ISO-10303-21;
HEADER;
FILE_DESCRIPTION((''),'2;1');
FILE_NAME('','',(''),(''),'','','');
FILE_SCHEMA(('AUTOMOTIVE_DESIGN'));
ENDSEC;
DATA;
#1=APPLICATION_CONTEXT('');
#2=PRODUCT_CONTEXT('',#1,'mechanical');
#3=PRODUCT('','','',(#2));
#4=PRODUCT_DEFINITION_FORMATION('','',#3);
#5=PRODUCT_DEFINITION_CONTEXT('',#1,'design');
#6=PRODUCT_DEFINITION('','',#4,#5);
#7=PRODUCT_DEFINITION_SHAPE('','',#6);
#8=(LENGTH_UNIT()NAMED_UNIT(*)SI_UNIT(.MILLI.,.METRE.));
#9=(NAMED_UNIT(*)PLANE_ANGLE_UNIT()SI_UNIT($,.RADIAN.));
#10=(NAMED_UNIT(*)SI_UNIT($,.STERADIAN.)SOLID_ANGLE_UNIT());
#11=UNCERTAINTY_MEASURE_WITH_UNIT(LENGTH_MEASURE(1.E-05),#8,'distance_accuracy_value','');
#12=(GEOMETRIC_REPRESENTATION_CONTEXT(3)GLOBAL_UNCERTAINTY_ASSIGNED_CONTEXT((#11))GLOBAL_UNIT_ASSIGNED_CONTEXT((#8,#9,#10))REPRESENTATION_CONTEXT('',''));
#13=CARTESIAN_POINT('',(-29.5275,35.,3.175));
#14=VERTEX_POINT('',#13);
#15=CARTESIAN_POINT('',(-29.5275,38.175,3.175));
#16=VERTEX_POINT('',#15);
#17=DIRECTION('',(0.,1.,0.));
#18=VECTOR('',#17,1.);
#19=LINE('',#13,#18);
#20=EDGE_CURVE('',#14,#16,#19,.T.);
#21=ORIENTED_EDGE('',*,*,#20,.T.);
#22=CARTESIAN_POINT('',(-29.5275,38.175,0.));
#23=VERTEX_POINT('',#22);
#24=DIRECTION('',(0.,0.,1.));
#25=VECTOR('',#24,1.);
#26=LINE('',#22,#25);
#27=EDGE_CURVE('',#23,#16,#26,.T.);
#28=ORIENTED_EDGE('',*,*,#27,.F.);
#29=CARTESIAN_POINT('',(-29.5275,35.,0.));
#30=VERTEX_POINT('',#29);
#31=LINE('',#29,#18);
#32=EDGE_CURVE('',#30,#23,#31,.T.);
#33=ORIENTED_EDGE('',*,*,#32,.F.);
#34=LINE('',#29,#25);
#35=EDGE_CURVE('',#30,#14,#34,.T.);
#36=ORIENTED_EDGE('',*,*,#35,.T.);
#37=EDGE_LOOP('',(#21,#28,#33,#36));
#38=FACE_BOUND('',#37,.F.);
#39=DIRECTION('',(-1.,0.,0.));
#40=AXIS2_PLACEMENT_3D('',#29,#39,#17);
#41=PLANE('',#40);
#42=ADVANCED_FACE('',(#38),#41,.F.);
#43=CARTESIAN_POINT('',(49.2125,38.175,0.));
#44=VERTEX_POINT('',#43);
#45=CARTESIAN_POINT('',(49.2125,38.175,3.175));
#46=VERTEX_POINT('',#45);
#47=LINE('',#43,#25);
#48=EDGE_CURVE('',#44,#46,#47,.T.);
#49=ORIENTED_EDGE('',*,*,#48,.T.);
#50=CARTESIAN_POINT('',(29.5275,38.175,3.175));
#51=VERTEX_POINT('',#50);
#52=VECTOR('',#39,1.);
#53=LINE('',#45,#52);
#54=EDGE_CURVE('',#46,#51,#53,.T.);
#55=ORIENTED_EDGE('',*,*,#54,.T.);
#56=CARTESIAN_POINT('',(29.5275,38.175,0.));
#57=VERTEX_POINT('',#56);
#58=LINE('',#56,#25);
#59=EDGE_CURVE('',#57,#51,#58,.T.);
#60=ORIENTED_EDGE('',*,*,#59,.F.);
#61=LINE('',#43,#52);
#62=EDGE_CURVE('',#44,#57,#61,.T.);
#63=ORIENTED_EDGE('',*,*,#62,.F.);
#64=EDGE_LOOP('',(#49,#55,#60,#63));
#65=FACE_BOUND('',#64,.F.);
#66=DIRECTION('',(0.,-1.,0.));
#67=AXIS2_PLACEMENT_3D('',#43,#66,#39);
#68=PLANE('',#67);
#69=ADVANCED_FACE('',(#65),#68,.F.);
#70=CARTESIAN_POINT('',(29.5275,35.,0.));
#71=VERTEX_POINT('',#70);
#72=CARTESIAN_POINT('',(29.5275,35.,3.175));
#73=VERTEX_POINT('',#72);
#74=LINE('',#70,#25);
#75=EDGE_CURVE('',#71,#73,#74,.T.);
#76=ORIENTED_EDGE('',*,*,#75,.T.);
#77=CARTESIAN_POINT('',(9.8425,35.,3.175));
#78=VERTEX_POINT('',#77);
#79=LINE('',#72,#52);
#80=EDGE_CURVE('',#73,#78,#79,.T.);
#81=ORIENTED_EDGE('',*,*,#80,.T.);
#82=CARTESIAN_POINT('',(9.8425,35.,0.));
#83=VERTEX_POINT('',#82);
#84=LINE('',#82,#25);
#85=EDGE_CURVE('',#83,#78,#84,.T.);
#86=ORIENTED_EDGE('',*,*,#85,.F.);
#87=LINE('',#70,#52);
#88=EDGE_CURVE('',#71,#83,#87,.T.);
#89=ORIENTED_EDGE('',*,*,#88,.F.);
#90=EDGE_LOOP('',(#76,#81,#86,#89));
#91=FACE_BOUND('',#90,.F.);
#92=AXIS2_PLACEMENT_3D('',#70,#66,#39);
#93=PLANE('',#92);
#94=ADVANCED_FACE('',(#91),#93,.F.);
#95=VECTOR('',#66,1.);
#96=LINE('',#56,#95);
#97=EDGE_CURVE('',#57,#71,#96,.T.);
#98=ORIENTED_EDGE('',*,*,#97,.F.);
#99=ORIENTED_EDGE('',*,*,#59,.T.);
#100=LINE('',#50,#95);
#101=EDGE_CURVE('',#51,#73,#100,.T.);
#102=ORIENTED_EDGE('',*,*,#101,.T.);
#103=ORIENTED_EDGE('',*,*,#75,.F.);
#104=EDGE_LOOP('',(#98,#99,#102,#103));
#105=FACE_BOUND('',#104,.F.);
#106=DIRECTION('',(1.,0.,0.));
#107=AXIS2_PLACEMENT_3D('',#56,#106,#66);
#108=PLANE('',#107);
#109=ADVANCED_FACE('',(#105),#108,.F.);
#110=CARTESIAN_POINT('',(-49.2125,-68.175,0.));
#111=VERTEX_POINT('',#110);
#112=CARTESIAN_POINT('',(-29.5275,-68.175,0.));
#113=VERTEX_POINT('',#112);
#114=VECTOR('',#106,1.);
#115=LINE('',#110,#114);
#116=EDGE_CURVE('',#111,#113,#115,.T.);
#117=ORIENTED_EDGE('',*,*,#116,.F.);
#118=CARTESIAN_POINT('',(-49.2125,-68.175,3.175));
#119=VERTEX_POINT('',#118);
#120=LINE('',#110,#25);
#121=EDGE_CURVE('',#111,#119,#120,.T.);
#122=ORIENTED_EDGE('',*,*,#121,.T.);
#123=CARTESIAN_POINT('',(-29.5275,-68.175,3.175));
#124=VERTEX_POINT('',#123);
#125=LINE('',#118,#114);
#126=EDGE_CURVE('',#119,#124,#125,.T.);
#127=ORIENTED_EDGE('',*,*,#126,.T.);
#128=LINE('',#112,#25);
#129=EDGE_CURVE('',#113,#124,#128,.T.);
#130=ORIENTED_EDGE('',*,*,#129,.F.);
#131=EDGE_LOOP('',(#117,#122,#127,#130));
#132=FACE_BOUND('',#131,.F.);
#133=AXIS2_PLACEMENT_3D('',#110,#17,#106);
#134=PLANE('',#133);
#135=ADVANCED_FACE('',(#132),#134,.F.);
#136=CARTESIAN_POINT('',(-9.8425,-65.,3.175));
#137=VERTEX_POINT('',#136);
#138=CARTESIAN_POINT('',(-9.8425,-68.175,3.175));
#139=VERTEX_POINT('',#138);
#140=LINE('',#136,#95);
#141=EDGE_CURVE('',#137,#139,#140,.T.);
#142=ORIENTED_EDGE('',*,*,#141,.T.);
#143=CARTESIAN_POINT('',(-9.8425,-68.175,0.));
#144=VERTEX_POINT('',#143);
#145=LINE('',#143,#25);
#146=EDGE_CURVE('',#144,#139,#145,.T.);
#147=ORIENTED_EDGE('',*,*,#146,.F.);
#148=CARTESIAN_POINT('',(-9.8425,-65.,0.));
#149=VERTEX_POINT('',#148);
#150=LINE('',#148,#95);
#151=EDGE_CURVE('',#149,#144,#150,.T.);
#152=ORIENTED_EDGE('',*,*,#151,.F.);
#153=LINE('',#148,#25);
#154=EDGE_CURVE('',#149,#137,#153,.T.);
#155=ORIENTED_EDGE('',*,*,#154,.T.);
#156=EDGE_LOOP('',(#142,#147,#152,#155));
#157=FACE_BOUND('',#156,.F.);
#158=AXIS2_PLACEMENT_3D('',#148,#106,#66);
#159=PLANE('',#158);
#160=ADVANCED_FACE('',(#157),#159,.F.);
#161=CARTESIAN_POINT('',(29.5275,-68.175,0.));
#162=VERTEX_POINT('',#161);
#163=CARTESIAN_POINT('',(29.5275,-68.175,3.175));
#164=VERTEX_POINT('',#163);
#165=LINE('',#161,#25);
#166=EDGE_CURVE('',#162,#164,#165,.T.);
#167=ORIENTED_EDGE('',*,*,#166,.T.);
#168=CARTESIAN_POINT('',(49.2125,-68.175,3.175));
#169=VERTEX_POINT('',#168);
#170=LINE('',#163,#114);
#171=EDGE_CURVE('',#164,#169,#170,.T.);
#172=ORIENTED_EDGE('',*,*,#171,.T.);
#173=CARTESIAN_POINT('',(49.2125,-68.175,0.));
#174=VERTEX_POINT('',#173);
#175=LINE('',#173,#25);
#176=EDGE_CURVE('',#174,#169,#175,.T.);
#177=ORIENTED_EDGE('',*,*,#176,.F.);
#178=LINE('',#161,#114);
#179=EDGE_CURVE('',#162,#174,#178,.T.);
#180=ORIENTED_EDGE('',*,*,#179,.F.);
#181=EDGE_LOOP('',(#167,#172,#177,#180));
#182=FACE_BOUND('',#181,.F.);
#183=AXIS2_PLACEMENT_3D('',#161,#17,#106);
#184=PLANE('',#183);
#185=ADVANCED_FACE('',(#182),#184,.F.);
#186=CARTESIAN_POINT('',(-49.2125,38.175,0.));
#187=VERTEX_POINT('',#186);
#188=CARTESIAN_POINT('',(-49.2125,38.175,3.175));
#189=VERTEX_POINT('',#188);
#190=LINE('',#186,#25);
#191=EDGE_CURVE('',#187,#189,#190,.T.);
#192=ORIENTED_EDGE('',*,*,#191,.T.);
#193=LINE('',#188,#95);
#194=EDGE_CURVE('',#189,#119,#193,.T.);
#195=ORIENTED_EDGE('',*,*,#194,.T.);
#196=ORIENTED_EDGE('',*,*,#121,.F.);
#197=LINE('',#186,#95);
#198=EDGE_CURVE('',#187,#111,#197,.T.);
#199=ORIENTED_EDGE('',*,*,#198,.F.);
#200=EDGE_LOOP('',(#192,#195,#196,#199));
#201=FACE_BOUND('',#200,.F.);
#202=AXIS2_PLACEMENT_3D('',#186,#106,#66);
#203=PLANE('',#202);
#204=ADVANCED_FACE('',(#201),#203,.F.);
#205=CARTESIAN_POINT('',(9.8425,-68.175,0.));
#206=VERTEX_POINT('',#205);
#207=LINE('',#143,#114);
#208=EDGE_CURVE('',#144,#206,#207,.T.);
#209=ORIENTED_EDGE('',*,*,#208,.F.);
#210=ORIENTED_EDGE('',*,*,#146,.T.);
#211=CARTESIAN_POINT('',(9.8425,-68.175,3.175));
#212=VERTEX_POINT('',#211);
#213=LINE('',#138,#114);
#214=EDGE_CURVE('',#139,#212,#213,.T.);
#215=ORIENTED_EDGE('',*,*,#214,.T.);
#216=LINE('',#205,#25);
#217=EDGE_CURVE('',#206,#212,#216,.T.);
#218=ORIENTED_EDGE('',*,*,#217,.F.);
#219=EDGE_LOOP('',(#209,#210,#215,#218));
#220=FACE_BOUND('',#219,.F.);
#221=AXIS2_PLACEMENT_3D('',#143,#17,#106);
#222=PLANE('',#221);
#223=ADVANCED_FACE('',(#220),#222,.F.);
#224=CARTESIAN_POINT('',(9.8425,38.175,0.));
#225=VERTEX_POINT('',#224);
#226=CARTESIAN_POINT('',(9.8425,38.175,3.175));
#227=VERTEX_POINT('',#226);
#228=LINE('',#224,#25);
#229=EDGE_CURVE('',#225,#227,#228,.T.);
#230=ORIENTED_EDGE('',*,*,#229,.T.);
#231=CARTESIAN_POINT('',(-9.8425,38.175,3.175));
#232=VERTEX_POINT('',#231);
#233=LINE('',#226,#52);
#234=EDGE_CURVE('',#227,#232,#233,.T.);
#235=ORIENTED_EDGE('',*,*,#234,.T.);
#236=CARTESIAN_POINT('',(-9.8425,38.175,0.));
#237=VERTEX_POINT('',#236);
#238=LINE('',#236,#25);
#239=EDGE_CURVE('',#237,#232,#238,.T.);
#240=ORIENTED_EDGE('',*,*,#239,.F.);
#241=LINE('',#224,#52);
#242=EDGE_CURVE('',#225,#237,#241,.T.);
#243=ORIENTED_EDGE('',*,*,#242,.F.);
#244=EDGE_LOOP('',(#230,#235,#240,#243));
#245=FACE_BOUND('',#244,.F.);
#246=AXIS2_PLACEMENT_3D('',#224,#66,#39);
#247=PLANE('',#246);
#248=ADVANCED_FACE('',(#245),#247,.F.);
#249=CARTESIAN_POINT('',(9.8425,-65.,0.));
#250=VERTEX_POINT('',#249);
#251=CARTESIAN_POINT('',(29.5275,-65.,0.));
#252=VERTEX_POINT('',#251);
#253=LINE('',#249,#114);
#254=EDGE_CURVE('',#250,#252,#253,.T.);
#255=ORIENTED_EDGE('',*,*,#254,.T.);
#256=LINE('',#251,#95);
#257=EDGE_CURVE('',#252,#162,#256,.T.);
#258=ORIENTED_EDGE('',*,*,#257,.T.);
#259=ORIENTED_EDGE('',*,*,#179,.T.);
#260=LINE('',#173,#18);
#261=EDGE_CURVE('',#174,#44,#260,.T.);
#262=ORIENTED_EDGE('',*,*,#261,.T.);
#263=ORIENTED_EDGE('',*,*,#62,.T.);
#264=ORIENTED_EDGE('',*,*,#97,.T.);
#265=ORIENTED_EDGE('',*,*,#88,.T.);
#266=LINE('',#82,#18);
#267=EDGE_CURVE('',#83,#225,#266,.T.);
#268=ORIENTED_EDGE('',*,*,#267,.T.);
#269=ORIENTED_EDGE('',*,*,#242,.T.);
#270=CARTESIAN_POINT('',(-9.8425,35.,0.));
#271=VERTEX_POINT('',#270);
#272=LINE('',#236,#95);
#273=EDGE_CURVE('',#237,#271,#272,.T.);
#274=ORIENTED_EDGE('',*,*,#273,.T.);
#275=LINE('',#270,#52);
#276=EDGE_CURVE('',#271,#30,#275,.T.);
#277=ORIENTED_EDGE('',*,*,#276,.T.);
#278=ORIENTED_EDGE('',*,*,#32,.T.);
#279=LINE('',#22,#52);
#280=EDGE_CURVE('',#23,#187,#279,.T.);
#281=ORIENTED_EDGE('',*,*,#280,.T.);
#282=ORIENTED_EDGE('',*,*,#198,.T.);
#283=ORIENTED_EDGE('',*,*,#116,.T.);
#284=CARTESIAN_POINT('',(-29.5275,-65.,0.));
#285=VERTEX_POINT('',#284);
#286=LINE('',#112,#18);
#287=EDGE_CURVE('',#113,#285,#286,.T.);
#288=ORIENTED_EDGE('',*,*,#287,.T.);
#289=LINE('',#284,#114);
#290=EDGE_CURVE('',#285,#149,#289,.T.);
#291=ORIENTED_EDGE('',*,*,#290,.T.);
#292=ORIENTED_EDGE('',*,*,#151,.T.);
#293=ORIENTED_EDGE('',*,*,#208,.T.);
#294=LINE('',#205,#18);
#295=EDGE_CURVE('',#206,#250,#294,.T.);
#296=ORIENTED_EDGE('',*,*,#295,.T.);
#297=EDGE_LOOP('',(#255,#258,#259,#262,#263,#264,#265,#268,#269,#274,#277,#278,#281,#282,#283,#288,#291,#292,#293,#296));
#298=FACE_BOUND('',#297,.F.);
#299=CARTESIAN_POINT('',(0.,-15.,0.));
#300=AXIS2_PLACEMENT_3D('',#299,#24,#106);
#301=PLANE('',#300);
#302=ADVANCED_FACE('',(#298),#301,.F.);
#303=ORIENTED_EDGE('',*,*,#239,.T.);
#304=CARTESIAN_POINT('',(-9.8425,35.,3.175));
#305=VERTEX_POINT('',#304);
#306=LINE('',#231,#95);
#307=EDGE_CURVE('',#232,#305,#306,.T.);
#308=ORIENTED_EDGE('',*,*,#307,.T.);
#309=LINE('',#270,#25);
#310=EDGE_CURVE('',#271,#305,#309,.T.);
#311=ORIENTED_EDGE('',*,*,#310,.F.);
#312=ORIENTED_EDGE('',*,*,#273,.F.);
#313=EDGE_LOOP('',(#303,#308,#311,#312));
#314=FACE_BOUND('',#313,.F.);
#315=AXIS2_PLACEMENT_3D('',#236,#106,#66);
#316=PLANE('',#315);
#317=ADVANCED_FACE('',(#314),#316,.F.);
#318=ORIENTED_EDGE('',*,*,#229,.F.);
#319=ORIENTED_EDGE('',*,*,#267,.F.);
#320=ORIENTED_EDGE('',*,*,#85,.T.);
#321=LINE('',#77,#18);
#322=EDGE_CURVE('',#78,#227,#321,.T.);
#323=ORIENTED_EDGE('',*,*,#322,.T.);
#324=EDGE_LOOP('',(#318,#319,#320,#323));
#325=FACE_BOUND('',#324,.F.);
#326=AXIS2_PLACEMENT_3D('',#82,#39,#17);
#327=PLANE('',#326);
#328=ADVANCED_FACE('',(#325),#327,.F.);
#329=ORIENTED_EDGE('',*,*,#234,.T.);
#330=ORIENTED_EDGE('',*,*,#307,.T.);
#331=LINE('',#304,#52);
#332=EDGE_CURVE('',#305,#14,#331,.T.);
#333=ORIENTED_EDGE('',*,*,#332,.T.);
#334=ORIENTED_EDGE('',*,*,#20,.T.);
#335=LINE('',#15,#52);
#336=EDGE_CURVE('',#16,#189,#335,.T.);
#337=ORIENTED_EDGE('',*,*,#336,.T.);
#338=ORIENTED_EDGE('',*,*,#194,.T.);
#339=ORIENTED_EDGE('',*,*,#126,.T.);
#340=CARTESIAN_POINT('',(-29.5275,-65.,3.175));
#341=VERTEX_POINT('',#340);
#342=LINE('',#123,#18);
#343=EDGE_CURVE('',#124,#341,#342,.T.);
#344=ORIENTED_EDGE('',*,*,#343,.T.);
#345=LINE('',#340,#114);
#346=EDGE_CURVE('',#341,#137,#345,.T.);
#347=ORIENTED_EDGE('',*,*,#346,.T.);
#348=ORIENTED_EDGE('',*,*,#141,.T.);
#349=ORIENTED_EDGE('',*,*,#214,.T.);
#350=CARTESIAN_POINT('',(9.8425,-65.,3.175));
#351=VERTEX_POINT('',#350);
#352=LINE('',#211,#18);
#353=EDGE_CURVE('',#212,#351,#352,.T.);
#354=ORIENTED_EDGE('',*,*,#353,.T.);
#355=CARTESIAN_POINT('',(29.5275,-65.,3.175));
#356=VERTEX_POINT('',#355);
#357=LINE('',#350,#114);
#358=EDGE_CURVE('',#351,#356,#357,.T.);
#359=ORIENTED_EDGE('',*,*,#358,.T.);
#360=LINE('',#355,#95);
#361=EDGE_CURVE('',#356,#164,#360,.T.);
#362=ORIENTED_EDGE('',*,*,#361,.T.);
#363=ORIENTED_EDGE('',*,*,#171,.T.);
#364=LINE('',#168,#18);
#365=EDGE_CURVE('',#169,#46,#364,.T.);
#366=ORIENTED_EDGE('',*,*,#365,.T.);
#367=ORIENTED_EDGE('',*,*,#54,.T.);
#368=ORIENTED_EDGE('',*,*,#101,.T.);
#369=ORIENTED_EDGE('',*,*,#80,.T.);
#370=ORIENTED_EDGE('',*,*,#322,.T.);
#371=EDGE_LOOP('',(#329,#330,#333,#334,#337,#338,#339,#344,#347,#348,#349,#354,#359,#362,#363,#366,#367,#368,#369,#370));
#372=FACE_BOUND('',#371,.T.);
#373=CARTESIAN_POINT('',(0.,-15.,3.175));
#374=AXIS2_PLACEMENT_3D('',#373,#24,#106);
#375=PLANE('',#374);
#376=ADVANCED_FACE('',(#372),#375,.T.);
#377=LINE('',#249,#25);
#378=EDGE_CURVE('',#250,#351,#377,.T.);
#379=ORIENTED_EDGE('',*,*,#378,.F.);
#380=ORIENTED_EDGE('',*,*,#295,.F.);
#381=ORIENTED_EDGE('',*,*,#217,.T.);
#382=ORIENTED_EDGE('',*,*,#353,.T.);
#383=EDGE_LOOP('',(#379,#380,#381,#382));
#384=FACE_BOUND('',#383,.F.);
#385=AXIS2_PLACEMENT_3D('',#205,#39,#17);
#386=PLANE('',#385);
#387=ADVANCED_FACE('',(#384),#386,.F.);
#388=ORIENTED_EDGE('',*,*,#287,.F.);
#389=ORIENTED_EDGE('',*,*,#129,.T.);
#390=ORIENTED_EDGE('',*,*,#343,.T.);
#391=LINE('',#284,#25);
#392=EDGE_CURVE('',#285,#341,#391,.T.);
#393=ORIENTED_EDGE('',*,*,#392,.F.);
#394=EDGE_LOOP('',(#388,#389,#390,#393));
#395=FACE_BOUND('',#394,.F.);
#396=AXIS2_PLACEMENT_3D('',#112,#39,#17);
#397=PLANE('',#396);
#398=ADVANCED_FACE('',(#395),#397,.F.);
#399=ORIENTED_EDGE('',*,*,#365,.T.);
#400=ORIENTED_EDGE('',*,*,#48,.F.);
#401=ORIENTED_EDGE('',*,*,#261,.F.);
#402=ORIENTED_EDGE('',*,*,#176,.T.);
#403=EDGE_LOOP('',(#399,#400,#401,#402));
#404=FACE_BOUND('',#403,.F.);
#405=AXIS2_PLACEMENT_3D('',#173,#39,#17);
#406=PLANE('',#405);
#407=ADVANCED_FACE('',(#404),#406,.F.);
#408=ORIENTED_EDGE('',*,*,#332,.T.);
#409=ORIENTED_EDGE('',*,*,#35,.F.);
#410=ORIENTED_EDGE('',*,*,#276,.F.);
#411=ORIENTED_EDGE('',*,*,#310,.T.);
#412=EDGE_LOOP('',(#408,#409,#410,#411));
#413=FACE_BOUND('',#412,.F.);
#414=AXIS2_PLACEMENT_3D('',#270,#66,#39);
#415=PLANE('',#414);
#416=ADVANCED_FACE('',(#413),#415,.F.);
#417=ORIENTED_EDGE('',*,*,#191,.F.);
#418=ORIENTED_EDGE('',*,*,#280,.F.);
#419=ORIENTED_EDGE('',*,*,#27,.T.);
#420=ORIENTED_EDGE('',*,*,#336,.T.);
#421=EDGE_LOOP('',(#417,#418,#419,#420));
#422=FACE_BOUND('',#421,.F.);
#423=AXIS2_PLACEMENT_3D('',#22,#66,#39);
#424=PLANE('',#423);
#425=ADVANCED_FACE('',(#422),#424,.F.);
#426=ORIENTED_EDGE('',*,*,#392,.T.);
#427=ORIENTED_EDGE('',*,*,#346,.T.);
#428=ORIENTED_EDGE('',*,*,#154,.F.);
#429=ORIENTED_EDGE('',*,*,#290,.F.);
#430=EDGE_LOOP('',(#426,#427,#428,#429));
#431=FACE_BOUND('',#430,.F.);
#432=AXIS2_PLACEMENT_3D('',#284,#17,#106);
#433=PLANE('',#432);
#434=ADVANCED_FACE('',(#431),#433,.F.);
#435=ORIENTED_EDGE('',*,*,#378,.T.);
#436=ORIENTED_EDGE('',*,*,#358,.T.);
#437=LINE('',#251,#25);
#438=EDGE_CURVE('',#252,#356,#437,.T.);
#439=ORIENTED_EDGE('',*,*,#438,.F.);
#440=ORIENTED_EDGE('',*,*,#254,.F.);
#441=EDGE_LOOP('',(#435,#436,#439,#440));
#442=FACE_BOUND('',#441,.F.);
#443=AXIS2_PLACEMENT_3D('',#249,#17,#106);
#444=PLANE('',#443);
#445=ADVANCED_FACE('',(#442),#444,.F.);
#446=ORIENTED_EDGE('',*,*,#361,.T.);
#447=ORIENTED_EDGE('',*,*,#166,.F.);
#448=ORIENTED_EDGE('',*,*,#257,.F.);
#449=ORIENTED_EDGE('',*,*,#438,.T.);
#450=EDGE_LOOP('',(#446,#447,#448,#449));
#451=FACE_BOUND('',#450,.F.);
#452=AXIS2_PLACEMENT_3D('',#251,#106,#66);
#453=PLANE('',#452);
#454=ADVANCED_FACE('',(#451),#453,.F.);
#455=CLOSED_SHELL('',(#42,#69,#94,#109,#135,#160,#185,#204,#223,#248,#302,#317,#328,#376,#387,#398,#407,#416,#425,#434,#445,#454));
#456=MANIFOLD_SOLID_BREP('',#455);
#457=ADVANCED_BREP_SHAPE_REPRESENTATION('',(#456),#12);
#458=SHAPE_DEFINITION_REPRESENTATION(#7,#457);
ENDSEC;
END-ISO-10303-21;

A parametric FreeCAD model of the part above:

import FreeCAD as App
import Part
import Sketcher
Q = App.Units.Quantity

doc = App.newDocument("Part")
body = doc.addObject("PartDesign::Body", "Body")

sketch1 = body.newObject("Sketcher::SketchObject", "Sketch")
sketch1.AttachmentSupport = (doc.getObject("XY_Plane"), [""])
sketch1.MapMode = "FlatFace"
sketch1.addGeometry([
    Part.LineSegment(App.Vector(-29.5, 38.2, 0), App.Vector(-49.2, 38.2, 0)),
    Part.LineSegment(App.Vector(-49.2, 38.2, 0), App.Vector(-49.2, -68.2, 0)),
    Part.LineSegment(App.Vector(-49.2, -68.2, 0), App.Vector(-29.5, -68.2, 0)),
    Part.LineSegment(App.Vector(-29.5, -68.2, 0), App.Vector(-29.5, -65, 0)),
    Part.LineSegment(App.Vector(-29.5, -65, 0), App.Vector(-9.8, -65, 0)),
    Part.LineSegment(App.Vector(-9.8, -65, 0), App.Vector(-9.8, -68.2, 0)),
    Part.LineSegment(App.Vector(-9.8, -68.2, 0), App.Vector(9.8, -68.2, 0)),
    Part.LineSegment(App.Vector(9.8, -68.2, 0), App.Vector(9.8, -65, 0)),
    Part.LineSegment(App.Vector(9.8, -65, 0), App.Vector(29.5, -65, 0)),
    Part.LineSegment(App.Vector(29.5, -65, 0), App.Vector(29.5, -68.2, 0)),
    Part.LineSegment(App.Vector(29.5, -68.2, 0), App.Vector(49.2, -68.2, 0)),
    Part.LineSegment(App.Vector(49.2, -68.2, 0), App.Vector(49.2, 38.2, 0)),
    Part.LineSegment(App.Vector(49.2, 38.2, 0), App.Vector(29.5, 38.2, 0)),
    Part.LineSegment(App.Vector(29.5, 38.2, 0), App.Vector(29.5, 35, 0)),
    Part.LineSegment(App.Vector(29.5, 35, 0), App.Vector(9.8, 35, 0)),
    Part.LineSegment(App.Vector(9.8, 35, 0), App.Vector(9.8, 38.2, 0)),
    Part.LineSegment(App.Vector(9.8, 38.2, 0), App.Vector(-9.8, 38.2, 0)),
    Part.LineSegment(App.Vector(-9.8, 38.2, 0), App.Vector(-9.8, 35, 0)),
    Part.LineSegment(App.Vector(-9.8, 35, 0), App.Vector(-29.5, 35, 0)),
    Part.LineSegment(App.Vector(-29.5, 35, 0), App.Vector(-29.5, 38.2, 0)),
], False)
sketch1.addConstraint([
    Sketcher.Constraint("Coincident", 0, 2, 1, 1),
    Sketcher.Constraint("Coincident", 1, 2, 2, 1),
    Sketcher.Constraint("Coincident", 2, 2, 3, 1),
    Sketcher.Constraint("Coincident", 3, 2, 4, 1),
    Sketcher.Constraint("Coincident", 4, 2, 5, 1),
    Sketcher.Constraint("Coincident", 5, 2, 6, 1),
    Sketcher.Constraint("Coincident", 6, 2, 7, 1),
    Sketcher.Constraint("Coincident", 7, 2, 8, 1),
    Sketcher.Constraint("Coincident", 8, 2, 9, 1),
    Sketcher.Constraint("Coincident", 9, 2, 10, 1),
    Sketcher.Constraint("Coincident", 10, 2, 11, 1),
    Sketcher.Constraint("Coincident", 11, 2, 12, 1),
    Sketcher.Constraint("Coincident", 12, 2, 13, 1),
    Sketcher.Constraint("Coincident", 13, 2, 14, 1),
    Sketcher.Constraint("Coincident", 14, 2, 15, 1),
    Sketcher.Constraint("Coincident", 15, 2, 16, 1),
    Sketcher.Constraint("Coincident", 16, 2, 17, 1),
    Sketcher.Constraint("Coincident", 17, 2, 18, 1),
    Sketcher.Constraint("Coincident", 18, 2, 19, 1),
    Sketcher.Constraint("Coincident", 19, 2, 0, 1),
    Sketcher.Constraint("Horizontal", 0),
    Sketcher.Constraint("Vertical", 1),
    Sketcher.Constraint("Horizontal", 2),
    Sketcher.Constraint("Vertical", 3),
    Sketcher.Constraint("Horizontal", 4),
    Sketcher.Constraint("Vertical", 5),
    Sketcher.Constraint("Horizontal", 6),
    Sketcher.Constraint("Vertical", 7),
    Sketcher.Constraint("Horizontal", 8),
    Sketcher.Constraint("Vertical", 9),
    Sketcher.Constraint("Horizontal", 10),
    Sketcher.Constraint("Vertical", 11),
    Sketcher.Constraint("Horizontal", 12),
    Sketcher.Constraint("Vertical", 13),
    Sketcher.Constraint("Horizontal", 14),
    Sketcher.Constraint("Vertical", 15),
    Sketcher.Constraint("Horizontal", 16),
    Sketcher.Constraint("Vertical", 17),
    Sketcher.Constraint("Horizontal", 18),
    Sketcher.Constraint("Vertical", 19),
    Sketcher.Constraint("Symmetric", 4, 2, 7, 2, -2),
    Sketcher.Constraint("Symmetric", 2, 2, 9, 2, -2),
    Sketcher.Constraint("Symmetric", 0, 2, 11, 2, -2),
    Sketcher.Constraint("Symmetric", 14, 2, 17, 2, -2),
    Sketcher.Constraint("Horizontal", 2, 2, 5, 2),
    Sketcher.Constraint("Horizontal", 12, 2, 15, 2),
    Sketcher.Constraint("Vertical", 9, 2, 12, 2),
    Sketcher.Constraint("Vertical", 7, 2, 14, 2),
    Sketcher.Constraint("Vertical", 3, 2, 18, 2),
    Sketcher.Constraint("Equal", 2, 4),
    Sketcher.Constraint("Equal", 4, 6),
    Sketcher.Constraint("Equal", 9, 13),
    Sketcher.Constraint("DistanceX", 0, 2, 12, 2, Q("3.1 in")),
    Sketcher.Constraint("DistanceY", 3, 1, 3, 2, Q("0.125 in")),
    Sketcher.Constraint("DistanceY", 1, 2, 1, 1, Q("106.35 mm")),
    Sketcher.Constraint("DistanceY", -1, 1, 0, 2, Q("38.175 mm")),
])
pad1 = body.newObject("PartDesign::Pad", "Pad")
pad1.Profile = sketch1
pad1.Length = Q("0.125 in")

doc.recompute()
